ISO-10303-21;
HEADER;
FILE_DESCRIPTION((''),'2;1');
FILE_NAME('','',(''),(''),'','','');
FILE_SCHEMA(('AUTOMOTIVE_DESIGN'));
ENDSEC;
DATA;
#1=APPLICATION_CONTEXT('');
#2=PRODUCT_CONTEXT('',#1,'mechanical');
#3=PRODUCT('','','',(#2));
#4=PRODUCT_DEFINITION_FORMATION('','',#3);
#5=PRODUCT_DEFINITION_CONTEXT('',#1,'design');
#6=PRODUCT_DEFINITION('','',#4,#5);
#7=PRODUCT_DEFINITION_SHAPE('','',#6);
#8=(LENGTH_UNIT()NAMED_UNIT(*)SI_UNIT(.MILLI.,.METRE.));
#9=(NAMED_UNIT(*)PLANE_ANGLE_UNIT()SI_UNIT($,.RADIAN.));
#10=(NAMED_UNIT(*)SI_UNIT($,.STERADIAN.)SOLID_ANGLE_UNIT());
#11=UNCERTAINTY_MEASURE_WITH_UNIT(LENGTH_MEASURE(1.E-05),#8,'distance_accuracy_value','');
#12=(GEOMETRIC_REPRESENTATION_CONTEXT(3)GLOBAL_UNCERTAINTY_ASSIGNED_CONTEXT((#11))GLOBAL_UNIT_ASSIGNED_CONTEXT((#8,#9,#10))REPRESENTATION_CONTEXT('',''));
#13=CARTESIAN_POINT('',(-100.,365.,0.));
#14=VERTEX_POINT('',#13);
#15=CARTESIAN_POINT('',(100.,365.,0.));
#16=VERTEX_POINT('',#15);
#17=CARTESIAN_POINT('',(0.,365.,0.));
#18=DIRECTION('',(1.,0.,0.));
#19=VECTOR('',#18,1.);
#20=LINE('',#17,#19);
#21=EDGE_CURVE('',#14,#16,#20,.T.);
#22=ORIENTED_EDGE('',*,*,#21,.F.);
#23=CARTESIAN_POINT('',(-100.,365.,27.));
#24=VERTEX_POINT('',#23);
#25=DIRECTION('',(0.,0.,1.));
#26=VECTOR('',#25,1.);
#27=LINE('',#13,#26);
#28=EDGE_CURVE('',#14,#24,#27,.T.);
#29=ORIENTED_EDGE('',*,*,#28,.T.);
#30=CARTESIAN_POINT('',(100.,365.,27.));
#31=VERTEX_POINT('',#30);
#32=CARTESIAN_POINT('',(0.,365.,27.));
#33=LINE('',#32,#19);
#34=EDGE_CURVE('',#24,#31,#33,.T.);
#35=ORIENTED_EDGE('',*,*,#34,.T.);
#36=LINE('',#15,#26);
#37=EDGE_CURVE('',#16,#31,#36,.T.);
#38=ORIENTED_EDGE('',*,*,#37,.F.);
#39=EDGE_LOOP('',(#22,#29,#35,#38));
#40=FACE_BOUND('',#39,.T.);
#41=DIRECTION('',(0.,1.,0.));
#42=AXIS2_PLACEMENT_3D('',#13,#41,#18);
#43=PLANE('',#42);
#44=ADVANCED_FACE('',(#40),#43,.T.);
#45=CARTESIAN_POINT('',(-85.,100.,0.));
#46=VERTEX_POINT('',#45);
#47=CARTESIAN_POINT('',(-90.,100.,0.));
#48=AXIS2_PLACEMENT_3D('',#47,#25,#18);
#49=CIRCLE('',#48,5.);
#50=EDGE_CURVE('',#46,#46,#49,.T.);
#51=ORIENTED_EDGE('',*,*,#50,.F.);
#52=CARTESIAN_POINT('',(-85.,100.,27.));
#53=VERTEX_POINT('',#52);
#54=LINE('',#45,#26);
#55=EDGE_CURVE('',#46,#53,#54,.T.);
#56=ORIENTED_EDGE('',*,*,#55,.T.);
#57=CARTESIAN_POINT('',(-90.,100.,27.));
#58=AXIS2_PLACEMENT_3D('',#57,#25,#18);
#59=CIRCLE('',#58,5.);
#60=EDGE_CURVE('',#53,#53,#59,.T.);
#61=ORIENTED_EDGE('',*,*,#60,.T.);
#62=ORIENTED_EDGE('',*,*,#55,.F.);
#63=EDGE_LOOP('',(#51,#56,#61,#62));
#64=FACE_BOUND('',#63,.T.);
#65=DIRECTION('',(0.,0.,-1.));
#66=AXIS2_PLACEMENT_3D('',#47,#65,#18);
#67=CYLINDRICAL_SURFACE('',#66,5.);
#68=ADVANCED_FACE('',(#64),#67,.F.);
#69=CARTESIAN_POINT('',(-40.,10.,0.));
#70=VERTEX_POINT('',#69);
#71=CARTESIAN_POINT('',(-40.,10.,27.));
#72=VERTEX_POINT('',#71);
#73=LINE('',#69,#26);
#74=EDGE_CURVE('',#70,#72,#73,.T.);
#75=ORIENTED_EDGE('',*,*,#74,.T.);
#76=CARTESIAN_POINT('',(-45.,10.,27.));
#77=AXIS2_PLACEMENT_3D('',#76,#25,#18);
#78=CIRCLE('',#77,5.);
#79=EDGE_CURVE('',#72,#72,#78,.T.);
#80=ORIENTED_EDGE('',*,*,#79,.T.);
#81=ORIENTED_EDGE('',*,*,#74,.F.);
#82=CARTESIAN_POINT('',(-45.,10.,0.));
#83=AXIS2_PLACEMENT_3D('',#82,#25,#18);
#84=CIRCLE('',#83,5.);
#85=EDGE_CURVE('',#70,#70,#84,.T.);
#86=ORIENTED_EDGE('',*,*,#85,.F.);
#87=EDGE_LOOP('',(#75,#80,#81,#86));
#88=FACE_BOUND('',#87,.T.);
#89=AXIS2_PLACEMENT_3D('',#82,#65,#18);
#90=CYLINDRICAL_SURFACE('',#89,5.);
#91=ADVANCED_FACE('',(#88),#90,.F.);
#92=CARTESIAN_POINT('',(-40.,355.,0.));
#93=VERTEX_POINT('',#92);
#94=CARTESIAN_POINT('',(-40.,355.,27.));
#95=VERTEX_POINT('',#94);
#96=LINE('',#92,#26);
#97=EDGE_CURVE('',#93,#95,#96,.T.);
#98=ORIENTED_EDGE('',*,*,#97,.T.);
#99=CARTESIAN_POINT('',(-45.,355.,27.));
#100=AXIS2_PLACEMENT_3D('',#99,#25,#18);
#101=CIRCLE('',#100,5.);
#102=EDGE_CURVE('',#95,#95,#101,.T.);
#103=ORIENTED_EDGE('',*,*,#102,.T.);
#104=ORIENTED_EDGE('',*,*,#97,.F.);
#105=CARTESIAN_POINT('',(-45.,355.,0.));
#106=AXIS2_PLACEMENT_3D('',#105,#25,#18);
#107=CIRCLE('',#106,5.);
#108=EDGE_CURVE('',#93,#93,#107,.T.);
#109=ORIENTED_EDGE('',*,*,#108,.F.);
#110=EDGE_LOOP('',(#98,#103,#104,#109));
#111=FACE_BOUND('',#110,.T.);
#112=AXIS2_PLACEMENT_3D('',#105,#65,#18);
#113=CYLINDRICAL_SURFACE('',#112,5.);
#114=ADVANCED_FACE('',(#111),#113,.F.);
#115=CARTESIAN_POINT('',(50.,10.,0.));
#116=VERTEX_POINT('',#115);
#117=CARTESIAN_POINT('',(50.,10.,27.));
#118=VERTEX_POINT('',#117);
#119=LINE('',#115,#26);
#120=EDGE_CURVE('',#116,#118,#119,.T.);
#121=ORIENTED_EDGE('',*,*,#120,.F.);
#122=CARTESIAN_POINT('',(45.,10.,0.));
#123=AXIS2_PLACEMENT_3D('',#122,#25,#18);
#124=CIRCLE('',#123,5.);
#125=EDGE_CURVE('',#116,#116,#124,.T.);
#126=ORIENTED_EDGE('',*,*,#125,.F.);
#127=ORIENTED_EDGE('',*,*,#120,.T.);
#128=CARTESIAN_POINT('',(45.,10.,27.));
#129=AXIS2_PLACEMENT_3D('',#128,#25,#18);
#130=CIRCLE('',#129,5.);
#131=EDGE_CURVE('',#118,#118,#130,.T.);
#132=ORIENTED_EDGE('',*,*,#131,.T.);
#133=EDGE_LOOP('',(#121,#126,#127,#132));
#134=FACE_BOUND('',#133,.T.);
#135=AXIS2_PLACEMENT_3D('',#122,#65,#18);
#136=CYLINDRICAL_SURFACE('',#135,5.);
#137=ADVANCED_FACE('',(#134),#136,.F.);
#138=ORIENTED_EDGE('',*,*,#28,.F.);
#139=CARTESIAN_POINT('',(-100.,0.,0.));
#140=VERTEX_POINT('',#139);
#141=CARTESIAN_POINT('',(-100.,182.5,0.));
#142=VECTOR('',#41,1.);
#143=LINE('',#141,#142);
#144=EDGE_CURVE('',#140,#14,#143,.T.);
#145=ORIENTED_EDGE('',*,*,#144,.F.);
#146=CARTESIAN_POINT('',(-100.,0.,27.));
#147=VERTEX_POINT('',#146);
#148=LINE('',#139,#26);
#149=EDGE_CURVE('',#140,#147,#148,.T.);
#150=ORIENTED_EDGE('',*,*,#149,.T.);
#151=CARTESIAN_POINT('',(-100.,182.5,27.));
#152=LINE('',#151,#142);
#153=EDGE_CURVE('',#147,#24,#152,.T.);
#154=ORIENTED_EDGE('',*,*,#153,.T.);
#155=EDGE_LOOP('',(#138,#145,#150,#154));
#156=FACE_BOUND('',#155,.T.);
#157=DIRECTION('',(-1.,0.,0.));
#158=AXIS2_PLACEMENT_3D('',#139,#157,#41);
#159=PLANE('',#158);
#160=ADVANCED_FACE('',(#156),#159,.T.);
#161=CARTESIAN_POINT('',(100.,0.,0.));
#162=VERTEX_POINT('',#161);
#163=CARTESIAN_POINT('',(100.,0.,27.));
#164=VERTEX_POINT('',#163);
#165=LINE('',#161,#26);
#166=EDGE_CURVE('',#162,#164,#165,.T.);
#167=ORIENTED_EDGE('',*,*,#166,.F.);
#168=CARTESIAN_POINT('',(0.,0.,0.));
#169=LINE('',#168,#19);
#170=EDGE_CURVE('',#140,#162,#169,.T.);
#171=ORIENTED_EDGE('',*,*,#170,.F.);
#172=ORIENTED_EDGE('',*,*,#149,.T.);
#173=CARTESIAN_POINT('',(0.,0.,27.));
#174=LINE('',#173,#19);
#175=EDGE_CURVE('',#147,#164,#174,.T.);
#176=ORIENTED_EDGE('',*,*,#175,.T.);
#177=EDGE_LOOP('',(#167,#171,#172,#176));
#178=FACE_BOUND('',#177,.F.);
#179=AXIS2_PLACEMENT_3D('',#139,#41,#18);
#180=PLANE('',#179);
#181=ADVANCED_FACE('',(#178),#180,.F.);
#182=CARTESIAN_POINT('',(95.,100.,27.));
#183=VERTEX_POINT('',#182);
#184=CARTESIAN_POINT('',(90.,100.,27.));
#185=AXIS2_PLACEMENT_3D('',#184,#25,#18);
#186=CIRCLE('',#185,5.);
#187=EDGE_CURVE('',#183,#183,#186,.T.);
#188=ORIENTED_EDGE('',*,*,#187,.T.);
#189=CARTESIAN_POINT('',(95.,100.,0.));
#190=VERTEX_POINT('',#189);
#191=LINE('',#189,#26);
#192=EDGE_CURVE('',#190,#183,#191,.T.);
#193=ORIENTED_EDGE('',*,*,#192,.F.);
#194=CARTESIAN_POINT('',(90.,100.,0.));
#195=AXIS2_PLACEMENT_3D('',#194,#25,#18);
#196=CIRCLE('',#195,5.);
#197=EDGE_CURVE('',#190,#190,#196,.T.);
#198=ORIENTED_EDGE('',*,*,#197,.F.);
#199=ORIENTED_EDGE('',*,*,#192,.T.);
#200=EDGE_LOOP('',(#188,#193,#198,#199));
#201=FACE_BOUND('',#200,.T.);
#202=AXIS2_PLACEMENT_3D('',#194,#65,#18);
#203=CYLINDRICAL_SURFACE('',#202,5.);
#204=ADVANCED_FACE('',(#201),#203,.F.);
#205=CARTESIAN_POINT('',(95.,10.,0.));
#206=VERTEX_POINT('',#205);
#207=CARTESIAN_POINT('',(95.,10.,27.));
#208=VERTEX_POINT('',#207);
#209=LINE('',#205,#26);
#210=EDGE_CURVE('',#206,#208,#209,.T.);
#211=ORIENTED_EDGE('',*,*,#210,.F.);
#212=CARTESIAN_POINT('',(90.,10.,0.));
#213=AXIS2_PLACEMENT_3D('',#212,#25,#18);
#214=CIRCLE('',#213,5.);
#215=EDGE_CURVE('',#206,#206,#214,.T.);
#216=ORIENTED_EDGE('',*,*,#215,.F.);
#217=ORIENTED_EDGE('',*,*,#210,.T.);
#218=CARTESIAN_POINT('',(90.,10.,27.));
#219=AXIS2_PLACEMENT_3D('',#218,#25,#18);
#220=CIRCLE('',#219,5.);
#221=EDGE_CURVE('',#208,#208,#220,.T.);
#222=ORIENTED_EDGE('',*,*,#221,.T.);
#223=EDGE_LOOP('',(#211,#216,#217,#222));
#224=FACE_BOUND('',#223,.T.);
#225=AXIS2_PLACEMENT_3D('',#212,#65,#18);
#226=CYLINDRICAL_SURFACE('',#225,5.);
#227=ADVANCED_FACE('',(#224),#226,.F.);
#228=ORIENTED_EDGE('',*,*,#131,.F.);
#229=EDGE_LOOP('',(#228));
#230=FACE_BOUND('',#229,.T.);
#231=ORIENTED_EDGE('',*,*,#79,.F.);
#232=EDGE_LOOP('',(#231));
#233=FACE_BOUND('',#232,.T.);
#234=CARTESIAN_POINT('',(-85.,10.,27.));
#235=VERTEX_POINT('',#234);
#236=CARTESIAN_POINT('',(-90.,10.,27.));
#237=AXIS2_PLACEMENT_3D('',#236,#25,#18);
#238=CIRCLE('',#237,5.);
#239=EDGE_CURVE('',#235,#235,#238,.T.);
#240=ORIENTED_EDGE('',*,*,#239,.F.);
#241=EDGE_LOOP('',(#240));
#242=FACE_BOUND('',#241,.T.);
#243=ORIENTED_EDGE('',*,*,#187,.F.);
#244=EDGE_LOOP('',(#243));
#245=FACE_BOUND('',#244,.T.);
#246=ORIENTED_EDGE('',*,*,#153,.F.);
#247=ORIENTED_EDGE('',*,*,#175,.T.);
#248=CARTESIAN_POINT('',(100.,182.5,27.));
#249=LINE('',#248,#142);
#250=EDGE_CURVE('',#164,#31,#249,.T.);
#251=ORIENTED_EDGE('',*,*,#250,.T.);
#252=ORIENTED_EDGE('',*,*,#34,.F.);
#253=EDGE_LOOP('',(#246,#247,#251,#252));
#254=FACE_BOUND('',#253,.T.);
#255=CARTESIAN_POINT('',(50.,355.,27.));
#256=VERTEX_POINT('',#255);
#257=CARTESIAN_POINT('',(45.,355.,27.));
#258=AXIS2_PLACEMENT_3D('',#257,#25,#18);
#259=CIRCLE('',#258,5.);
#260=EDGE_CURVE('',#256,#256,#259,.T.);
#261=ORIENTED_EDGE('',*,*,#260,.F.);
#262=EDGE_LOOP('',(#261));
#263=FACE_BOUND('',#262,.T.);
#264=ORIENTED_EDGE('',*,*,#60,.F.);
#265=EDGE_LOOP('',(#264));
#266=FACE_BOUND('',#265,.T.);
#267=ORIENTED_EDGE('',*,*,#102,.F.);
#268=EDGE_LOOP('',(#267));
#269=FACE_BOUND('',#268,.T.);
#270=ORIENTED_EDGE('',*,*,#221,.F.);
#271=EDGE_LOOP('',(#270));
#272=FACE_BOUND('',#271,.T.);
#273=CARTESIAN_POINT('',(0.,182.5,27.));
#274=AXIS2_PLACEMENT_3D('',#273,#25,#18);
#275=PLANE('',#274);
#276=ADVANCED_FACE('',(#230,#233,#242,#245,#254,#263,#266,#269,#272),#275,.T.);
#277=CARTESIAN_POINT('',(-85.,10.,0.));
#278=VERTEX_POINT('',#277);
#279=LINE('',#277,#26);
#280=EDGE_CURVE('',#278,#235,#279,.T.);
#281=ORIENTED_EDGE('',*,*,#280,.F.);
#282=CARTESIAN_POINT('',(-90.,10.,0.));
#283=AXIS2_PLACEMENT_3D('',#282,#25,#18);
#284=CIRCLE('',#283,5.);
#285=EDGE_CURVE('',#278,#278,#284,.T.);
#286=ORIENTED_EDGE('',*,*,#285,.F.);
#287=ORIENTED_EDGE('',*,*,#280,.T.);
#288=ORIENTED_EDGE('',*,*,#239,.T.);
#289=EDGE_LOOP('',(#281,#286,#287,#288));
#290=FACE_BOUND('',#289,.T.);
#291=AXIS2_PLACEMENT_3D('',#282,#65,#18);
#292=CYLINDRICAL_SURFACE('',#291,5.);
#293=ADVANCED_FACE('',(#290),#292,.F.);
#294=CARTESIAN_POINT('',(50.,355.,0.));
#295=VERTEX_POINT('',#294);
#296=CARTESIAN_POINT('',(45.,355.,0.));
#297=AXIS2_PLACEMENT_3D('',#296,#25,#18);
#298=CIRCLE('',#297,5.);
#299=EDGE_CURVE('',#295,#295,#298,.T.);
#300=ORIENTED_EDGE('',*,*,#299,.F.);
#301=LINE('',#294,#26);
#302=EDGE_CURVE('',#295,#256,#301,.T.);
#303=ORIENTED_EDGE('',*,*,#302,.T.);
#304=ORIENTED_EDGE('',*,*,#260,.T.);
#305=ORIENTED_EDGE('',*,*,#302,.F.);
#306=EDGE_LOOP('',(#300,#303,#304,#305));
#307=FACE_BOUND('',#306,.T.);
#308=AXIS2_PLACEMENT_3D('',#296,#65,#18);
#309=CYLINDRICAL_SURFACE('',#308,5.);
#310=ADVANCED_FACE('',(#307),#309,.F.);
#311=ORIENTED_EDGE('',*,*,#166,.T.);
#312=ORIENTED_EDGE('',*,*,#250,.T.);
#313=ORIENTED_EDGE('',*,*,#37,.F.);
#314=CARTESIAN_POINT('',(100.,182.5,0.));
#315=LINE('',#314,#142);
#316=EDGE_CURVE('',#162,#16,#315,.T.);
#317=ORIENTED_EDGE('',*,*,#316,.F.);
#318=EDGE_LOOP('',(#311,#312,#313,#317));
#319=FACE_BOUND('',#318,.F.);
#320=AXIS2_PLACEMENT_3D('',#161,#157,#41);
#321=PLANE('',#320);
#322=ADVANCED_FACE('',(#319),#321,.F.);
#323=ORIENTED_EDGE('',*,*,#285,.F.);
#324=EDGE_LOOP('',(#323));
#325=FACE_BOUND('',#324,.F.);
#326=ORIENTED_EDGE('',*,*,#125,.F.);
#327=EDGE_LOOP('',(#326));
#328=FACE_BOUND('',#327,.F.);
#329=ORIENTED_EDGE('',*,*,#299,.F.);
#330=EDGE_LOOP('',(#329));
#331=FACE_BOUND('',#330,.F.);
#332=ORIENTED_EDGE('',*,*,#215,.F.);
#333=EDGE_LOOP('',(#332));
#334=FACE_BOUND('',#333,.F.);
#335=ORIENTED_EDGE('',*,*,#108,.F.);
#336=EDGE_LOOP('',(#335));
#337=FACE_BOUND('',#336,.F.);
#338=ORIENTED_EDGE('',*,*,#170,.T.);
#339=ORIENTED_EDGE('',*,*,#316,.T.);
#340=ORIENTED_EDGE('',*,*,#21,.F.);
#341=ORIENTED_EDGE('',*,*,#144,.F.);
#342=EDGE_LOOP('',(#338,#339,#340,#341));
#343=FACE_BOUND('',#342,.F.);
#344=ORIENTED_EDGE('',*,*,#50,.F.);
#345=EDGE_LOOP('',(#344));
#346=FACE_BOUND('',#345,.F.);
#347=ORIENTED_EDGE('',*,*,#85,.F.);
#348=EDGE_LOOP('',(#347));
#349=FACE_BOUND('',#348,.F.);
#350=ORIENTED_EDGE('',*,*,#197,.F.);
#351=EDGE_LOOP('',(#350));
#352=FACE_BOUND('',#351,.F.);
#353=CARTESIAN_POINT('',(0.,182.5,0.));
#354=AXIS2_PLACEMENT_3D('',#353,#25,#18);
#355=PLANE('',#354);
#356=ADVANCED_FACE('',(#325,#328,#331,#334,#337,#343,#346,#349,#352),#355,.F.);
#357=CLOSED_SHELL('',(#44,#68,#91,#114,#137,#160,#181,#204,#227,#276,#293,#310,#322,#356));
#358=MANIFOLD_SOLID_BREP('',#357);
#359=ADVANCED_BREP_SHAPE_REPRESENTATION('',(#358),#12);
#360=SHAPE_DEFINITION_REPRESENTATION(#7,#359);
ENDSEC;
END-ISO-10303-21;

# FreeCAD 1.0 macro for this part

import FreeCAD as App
import Part
import Sketcher

V = App.Vector


def add_polygon(sketch, points):
    """Adds a closed chain of lines whose ends are joined by coincident constraints."""
    first, n = sketch.GeometryCount, len(points)
    for a, b in zip(points, points[1:] + points[:1]):
        sketch.addGeometry(Part.LineSegment(App.Vector(*a, 0), App.Vector(*b, 0)), False)
    for i in range(n):
        sketch.addConstraint(Sketcher.Constraint("Coincident", first + i, 2, first + (i + 1) % n, 1))

doc = App.newDocument("Part")
body = doc.addObject("PartDesign::Body", "Body")

# Sketch on XY plane
sketch1 = body.newObject("Sketcher::SketchObject", "Sketch")
sketch1.AttachmentSupport = (doc.getObject("XY_Plane"), [""])
sketch1.MapMode = "FlatFace"
add_polygon(sketch1, [(-100, 365), (-100, 0), (100, 0), (100, 365)])  # lines 0-3
sketch1.addGeometry(Part.Circle(V(-90, 10, 0), V(0, 0, 1), 5), False)  # 4
sketch1.addGeometry(Part.Circle(V(-45, 10, 0), V(0, 0, 1), 5), False)  # 5
sketch1.addGeometry(Part.Circle(V(-90, 100, 0), V(0, 0, 1), 5), False)  # 6
sketch1.addGeometry(Part.Circle(V(45, 10, 0), V(0, 0, 1), 5), False)  # 7
sketch1.addGeometry(Part.Circle(V(90, 10, 0), V(0, 0, 1), 5), False)  # 8
sketch1.addGeometry(Part.Circle(V(90, 100, 0), V(0, 0, 1), 5), False)  # 9
sketch1.addGeometry(Part.Circle(V(-45, 355, 0), V(0, 0, 1), 5), False)  # 10
sketch1.addGeometry(Part.Circle(V(45, 355, 0), V(0, 0, 1), 5), False)  # 11
sketch1.addConstraint([
    Sketcher.Constraint("Vertical", 0),
    Sketcher.Constraint("Horizontal", 1),
    Sketcher.Constraint("Vertical", 2),
    Sketcher.Constraint("Horizontal", 3),
    Sketcher.Constraint("Equal", 4, 5),
    Sketcher.Constraint("Equal", 5, 6),
    Sketcher.Constraint("Equal", 6, 7),
    Sketcher.Constraint("Equal", 7, 8),
    Sketcher.Constraint("Equal", 8, 9),
    Sketcher.Constraint("Equal", 9, 10),
    Sketcher.Constraint("Equal", 10, 11),
    Sketcher.Constraint("Symmetric", 0, 2, 1, 2, -1, 1),
    Sketcher.Constraint("Symmetric", 5, 3, 7, 3, -2),
    Sketcher.Constraint("Symmetric", 4, 3, 8, 3, -2),
    Sketcher.Constraint("Symmetric", 6, 3, 9, 3, -2),
    Sketcher.Constraint("Symmetric", 10, 3, 11, 3, -2),
    Sketcher.Constraint("Horizontal", 4, 3, 5, 3),
    Sketcher.Constraint("Vertical", 4, 3, 6, 3),
    Sketcher.Constraint("Vertical", 5, 3, 10, 3),
    Sketcher.Constraint("Diameter", 4, 10.0),
    Sketcher.Constraint("DistanceX", 1, 1, 1, 2, 200.0),
    Sketcher.Constraint("DistanceY", 0, 2, 0, 1, 365.0),
    Sketcher.Constraint("DistanceX", 4, 3, -1, 1, 90.0),
    Sketcher.Constraint("DistanceY", -1, 1, 4, 3, 10.0),
    Sketcher.Constraint("DistanceX", 5, 3, -1, 1, 45.0),
    Sketcher.Constraint("DistanceY", -1, 1, 6, 3, 100.0),
    Sketcher.Constraint("DistanceY", -1, 1, 10, 3, 355.0),
])
pad1 = body.newObject("PartDesign::Pad", "Pad")
pad1.Profile = sketch1
pad1.Length = 27

doc.recompute()
